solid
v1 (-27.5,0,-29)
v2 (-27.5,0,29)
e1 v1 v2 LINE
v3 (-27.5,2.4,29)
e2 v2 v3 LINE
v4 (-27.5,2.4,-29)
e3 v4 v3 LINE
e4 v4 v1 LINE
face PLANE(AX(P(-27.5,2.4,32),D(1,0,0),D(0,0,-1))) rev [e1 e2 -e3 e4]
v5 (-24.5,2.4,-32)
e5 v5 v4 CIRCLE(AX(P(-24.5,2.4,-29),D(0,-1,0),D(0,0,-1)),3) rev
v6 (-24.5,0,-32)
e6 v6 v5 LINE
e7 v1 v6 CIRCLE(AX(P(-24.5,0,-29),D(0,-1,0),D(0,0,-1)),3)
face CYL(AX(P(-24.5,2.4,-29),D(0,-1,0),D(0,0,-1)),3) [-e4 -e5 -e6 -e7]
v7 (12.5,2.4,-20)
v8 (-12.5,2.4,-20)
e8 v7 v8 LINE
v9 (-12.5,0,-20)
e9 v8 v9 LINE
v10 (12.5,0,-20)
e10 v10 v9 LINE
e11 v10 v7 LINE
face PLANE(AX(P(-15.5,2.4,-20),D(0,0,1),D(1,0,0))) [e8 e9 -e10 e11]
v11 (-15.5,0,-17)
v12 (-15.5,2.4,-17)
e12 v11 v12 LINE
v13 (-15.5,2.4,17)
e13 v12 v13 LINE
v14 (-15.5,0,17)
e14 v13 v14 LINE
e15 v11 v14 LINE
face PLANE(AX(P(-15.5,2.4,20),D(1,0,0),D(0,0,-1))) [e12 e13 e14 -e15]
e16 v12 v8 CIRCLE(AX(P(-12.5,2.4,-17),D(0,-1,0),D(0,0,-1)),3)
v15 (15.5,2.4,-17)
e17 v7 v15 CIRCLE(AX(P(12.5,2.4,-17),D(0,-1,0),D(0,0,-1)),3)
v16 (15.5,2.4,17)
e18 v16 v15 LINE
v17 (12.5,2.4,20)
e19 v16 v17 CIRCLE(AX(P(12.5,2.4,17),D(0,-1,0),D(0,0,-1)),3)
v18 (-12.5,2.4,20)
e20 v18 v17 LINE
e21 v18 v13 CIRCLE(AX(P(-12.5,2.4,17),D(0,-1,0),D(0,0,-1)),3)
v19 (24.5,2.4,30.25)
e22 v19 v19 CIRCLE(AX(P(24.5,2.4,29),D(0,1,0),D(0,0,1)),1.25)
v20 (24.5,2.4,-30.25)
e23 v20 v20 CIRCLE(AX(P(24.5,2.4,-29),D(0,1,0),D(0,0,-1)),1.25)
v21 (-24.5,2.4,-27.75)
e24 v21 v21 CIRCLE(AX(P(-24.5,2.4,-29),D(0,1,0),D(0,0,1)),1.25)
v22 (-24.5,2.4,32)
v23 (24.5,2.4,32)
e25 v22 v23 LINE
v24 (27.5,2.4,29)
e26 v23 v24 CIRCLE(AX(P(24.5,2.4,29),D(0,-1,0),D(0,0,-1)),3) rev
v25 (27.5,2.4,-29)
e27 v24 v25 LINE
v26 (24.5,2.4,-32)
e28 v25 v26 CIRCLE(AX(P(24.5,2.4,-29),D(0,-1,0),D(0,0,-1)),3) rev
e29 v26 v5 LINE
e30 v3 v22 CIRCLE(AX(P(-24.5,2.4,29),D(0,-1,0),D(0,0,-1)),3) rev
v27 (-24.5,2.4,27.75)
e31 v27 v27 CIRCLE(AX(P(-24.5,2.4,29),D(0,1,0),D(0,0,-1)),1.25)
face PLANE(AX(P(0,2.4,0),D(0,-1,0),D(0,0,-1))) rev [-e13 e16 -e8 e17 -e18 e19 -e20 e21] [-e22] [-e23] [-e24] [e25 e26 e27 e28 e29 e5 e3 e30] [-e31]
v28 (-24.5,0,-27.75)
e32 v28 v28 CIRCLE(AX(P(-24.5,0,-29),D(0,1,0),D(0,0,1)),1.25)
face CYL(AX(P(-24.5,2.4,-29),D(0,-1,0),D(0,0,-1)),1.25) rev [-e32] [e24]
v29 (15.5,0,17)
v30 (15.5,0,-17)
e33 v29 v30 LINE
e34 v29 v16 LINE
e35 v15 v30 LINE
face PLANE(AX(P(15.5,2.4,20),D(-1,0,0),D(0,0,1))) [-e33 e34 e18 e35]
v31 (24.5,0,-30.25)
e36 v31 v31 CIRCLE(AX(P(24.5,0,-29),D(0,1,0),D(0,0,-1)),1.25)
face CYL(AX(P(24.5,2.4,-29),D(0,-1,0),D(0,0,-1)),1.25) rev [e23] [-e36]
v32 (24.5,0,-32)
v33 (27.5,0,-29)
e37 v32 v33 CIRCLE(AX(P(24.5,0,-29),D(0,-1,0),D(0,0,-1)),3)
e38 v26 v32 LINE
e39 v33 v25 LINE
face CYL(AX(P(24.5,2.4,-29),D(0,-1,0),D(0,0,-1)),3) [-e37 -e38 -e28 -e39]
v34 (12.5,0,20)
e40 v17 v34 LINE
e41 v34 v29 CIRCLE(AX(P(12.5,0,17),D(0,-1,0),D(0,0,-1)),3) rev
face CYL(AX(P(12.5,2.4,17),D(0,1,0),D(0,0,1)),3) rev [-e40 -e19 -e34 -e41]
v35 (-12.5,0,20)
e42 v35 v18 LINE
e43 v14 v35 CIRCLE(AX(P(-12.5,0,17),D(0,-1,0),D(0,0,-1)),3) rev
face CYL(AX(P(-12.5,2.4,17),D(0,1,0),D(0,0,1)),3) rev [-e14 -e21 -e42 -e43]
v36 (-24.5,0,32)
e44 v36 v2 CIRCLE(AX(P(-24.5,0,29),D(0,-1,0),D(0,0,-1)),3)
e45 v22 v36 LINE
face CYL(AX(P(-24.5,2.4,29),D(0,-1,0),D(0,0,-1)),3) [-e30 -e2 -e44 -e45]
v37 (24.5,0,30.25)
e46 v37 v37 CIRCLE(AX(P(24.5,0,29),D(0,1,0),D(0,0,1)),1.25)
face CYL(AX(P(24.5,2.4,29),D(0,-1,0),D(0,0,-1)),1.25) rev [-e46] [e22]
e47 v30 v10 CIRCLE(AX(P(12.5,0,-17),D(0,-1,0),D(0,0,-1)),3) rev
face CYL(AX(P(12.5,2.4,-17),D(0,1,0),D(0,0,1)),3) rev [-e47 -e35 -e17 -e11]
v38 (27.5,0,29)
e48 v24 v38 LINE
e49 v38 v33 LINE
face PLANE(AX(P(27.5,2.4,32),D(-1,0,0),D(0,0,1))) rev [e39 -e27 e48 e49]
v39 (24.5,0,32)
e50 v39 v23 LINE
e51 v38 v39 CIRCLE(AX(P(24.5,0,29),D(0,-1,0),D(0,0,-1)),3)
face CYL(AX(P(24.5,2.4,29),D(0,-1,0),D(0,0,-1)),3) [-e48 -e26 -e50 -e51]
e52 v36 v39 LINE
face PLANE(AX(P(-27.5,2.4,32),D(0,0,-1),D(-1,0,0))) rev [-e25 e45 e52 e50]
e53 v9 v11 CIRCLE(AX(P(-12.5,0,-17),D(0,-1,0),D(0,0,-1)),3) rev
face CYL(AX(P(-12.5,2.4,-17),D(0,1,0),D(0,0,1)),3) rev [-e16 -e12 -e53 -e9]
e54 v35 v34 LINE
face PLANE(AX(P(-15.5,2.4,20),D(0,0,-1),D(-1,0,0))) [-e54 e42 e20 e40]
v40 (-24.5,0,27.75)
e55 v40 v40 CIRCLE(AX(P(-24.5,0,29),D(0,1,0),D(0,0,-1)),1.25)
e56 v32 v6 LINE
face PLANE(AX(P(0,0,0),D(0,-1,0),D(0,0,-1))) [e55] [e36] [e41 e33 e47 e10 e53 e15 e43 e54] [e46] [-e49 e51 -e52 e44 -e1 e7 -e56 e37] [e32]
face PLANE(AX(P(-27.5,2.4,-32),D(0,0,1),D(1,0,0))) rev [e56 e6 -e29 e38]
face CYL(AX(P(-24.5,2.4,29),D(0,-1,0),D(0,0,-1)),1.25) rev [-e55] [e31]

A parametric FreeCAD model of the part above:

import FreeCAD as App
import Part
import Sketcher


def edges_at(feature, points):
    """Names of the edges that pass closest to the given points."""
    edges = feature.Shape.Edges
    near = lambda p: min(range(len(edges)), key=lambda i: edges[i].distToShape(Part.Vertex(*p))[0])
    return sorted({f"Edge{near(p) + 1}" for p in points})


def add_polygon(sketch, points):
    """Adds a closed chain of lines whose ends are joined by coincident constraints."""
    first, n = sketch.GeometryCount, len(points)
    for a, b in zip(points, points[1:] + points[:1]):
        sketch.addGeometry(Part.LineSegment(App.Vector(*a, 0), App.Vector(*b, 0)), False)
    for i in range(n):
        sketch.addConstraint(Sketcher.Constraint("Coincident", first + i, 2, first + (i + 1) % n, 1))

doc = App.newDocument("Part")
params = doc.addObject("Spreadsheet::Sheet", "Params")
for row, (alias, value) in enumerate([
    ("sketch1_diameter", "2.5 mm"),
    ("sketch1_width", "55 mm"),
    ("sketch1_width2", "31 mm"),
    ("sketch1_height", "64 mm"),
    ("sketch1_height2", "40 mm"),
    ("pad1_length", "2.4 mm"),
    ("fillet_radius", "3 mm"),
], start=1):
    params.set(f"A{row}", alias)
    params.set(f"B{row}", "=" + value)
    params.setAlias(f"B{row}", alias)

body = doc.addObject("PartDesign::Body", "Body")

sketch1 = body.newObject("Sketcher::SketchObject", "Sketch")
sketch1.AttachmentSupport = (doc.getObject("XZ_Plane"), [""])
sketch1.MapMode = "FlatFace"
add_polygon(sketch1, [(-27.5, -32), (-27.5, 32), (27.5, 32), (27.5, -32)])
sketch1.addGeometry(Part.Circle(App.Vector(-24.5, 29, 0), App.Vector(0, 0, 1), 1.2), False)
sketch1.addGeometry(Part.Circle(App.Vector(24.5, 29, 0), App.Vector(0, 0, 1), 1.2), False)
add_polygon(sketch1, [(15.5, 20), (-15.5, 20), (-15.5, -20), (15.5, -20)])
sketch1.addGeometry(Part.Circle(App.Vector(-24.5, -29, 0), App.Vector(0, 0, 1), 1.2), False)
sketch1.addGeometry(Part.Circle(App.Vector(24.5, -29, 0), App.Vector(0, 0, 1), 1.2), False)
sketch1.addConstraint([
    Sketcher.Constraint("Vertical", 0),
    Sketcher.Constraint("Horizontal", 1),
    Sketcher.Constraint("Vertical", 2),
    Sketcher.Constraint("Horizontal", 3),
    Sketcher.Constraint("Horizontal", 6),
    Sketcher.Constraint("Vertical", 7),
    Sketcher.Constraint("Horizontal", 8),
    Sketcher.Constraint("Vertical", 9),
    Sketcher.Constraint("Equal", 4, 5),
    Sketcher.Constraint("Equal", 5, 10),
    Sketcher.Constraint("Equal", 10, 11),
    Sketcher.Constraint("Symmetric", 5, 3, 10, 3, -1, 1),
    Sketcher.Constraint("Symmetric", 4, 3, 11, 3, -1, 1),
    Sketcher.Constraint("Symmetric", 0, 2, 2, 2, -1, 1),
    Sketcher.Constraint("Symmetric", 6, 2, 8, 2, -1, 1),
    Sketcher.Constraint("Symmetric", 4, 3, 5, 3, -2),
    Sketcher.Constraint("Diameter", 4, 2.5),
    Sketcher.Constraint("DistanceX", 1, 1, 1, 2, 55.0),
    Sketcher.Constraint("DistanceX", 6, 2, 6, 1, 31.0),
    Sketcher.Constraint("DistanceY", 0, 1, 0, 2, 64.0),
    Sketcher.Constraint("DistanceY", 7, 2, 7, 1, 40.0),
    Sketcher.Constraint("DistanceY", -1, 1, 4, 3, 29.0),
    Sketcher.Constraint("DistanceX", 4, 3, 5, 3, 49.0),
])
sketch1.setExpression("Constraints[24]", "Params.sketch1_diameter")
sketch1.setExpression("Constraints[25]", "Params.sketch1_width")
sketch1.setExpression("Constraints[26]", "Params.sketch1_width2")
sketch1.setExpression("Constraints[27]", "Params.sketch1_height")
sketch1.setExpression("Constraints[28]", "Params.sketch1_height2")
pad1 = body.newObject("PartDesign::Pad", "Pad")
pad1.Profile = sketch1
pad1.setExpression("Length", "Params.pad1_length")
pad1.Reversed = True
doc.recompute()

fillet = body.newObject("PartDesign::Fillet", "Fillet")
fillet.Base = (pad1, edges_at(pad1, [
    (-15.5, 1.2, 20),
    (15.5, 1.2, 20),
    (15.5, 1.2, -20),
    (-15.5, 1.2, -20),
    (27.5, 1.2, 32),
    (-27.5, 1.2, 32),
    (-27.5, 1.2, -32),
    (27.5, 1.2, -32),
]))
fillet.setExpression("Radius", "Params.fillet_radius")

doc.recompute()
